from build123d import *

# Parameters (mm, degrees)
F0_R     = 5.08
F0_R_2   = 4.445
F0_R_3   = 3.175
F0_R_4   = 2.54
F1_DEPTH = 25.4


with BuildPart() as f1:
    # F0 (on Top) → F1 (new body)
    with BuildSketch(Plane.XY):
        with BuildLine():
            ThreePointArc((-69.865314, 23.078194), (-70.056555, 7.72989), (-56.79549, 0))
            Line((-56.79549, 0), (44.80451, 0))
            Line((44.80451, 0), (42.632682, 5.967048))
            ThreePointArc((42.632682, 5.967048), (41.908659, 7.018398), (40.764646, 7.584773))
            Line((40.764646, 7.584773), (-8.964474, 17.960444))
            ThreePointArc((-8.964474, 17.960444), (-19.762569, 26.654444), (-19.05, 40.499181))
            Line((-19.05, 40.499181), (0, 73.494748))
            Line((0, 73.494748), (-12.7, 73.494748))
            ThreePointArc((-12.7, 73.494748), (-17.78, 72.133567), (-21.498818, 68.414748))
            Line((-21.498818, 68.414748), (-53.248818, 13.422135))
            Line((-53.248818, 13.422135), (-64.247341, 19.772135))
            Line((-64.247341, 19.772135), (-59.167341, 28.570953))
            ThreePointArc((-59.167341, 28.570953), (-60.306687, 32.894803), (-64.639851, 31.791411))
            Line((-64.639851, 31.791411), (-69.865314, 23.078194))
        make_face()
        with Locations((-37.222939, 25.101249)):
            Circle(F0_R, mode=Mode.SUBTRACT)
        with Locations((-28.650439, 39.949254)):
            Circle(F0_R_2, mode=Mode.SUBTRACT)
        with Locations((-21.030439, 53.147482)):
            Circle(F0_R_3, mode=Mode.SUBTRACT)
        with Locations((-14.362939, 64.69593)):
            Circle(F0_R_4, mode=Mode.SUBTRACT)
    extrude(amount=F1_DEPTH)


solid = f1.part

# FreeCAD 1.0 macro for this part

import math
import FreeCAD as App
import Part
import Sketcher
Q = App.Units.Quantity

doc = App.newDocument("Part")
params = doc.addObject("Spreadsheet::Sheet", "Params")
for row, (alias, value) in enumerate([
    ("sketch1_diameter", "0.4 in"),
    ("sketch1_diameter2", "0.2 in"),
    ("sketch1_radius", "0.6 in"),
    ("sketch1_radius2", "0.0999998 in"),
    ("sketch1_diameter3", "0.35 in"),
    ("pad1_length", "1 in"),
], start=1):
    params.set(f"A{row}", alias)
    params.set(f"B{row}", "=" + value)
    params.setAlias(f"B{row}", alias)

body = doc.addObject("PartDesign::Body", "Body")

# Sketch on XY plane
sketch1 = body.newObject("Sketcher::SketchObject", "Sketch")
sketch1.AttachmentSupport = (doc.getObject("XY_Plane"), [""])
sketch1.MapMode = "FlatFace"
sketch1.addGeometry([
    Part.ArcOfCircle(Part.Circle(App.Vector(-56.8, 15.2, 0), App.Vector(0, 0, 1), 15.2), math.radians(149), math.radians(270)),  # 0
    Part.LineSegment(App.Vector(-56.8, 0, 0), App.Vector(44.8, 0, 0)),  # 1
    Part.LineSegment(App.Vector(44.8, 0, 0), App.Vector(42.6, 6, 0)),  # 2
    Part.ArcOfCircle(Part.Circle(App.Vector(40.2, 5.1, 0), App.Vector(0, 0, 1), 2.5), math.radians(20), math.radians(78)),  # 3
    Part.LineSegment(App.Vector(40.8, 7.6, 0), App.Vector(-9, 18, 0)),  # 4
    Part.ArcOfCircle(Part.Circle(App.Vector(-5.9, 32.9, 0), App.Vector(0, 0, 1), 15.2), math.radians(150), math.radians(258)),  # 5
    Part.LineSegment(App.Vector(-19.1, 40.5, 0), App.Vector(0, 73.5, 0)),  # 6
    Part.LineSegment(App.Vector(0, 73.5, 0), App.Vector(-12.7, 73.5, 0)),  # 7
    Part.ArcOfCircle(Part.Circle(App.Vector(-12.7, 63.3, 0), App.Vector(0, 0, 1), 10.2), math.radians(90), math.radians(150)),  # 8
    Part.LineSegment(App.Vector(-21.5, 68.4, 0), App.Vector(-53.2, 13.4, 0)),  # 9
    Part.LineSegment(App.Vector(-53.2, 13.4, 0), App.Vector(-64.2, 19.8, 0)),  # 10
    Part.LineSegment(App.Vector(-64.2, 19.8, 0), App.Vector(-59.2, 28.6, 0)),  # 11
    Part.ArcOfCircle(Part.Circle(App.Vector(-61.9, 30.2, 0), App.Vector(0, 0, 1), 3.2), math.radians(-30), math.radians(149)),  # 12
    Part.LineSegment(App.Vector(-64.6, 31.8, 0), App.Vector(-69.9, 23.1, 0)),  # 13
    Part.Circle(App.Vector(-37.2, 25.1, 0), App.Vector(0, 0, 1), 5.1),  # 14
    Part.Circle(App.Vector(-28.7, 39.9, 0), App.Vector(0, 0, 1), 4.4),  # 15
    Part.Circle(App.Vector(-21, 53.1, 0), App.Vector(0, 0, 1), 3.2),  # 16
    Part.Circle(App.Vector(-14.4, 64.7, 0), App.Vector(0, 0, 1), 2.5),  # 17
], False)
sketch1.addConstraint([
    Sketcher.Constraint("Tangent", 0, 2, 1, 1),
    Sketcher.Constraint("Coincident", 1, 2, 2, 1),
    Sketcher.Constraint("Tangent", 2, 2, 3, 1),
    Sketcher.Constraint("Tangent", 3, 2, 4, 1),
    Sketcher.Constraint("Tangent", 4, 2, 5, 2),
    Sketcher.Constraint("Tangent", 5, 1, 6, 1),
    Sketcher.Constraint("Coincident", 6, 2, 7, 1),
    Sketcher.Constraint("Tangent", 7, 2, 8, 1),
    Sketcher.Constraint("Tangent", 8, 2, 9, 1),
    Sketcher.Constraint("Coincident", 9, 2, 10, 1),
    Sketcher.Constraint("Coincident", 10, 2, 11, 1),
    Sketcher.Constraint("Tangent", 11, 2, 12, 1),
    Sketcher.Constraint("Tangent", 12, 2, 13, 1),
    Sketcher.Constraint("Tangent", 13, 2, 0, 1),
    Sketcher.Constraint("Horizontal", 1),
    Sketcher.Constraint("Horizontal", 7),
    Sketcher.Constraint("Equal", 0, 5),
    Sketcher.Constraint("Equal", 12, 16),
    Sketcher.Constraint("PointOnObject", 0, 2, -1),
    Sketcher.Constraint("PointOnObject", 6, 2, -2),
    Sketcher.Constraint("Parallel", 6, 9),
    Sketcher.Constraint("Perpendicular", 9, 10),
    Sketcher.Constraint("Perpendicular", 10, 11),
    Sketcher.Constraint("Equal", 11, 13),
    Sketcher.Constraint("Diameter", 14, Q("0.4 in")),
    Sketcher.Constraint("Diameter", 17, Q("0.2 in")),
    Sketcher.Constraint("Radius", 0, Q("0.6 in")),
    Sketcher.Constraint("Radius", 3, Q("0.0999998 in")),
    Sketcher.Constraint("Diameter", 15, Q("0.35 in")),
    Sketcher.Constraint("Diameter", 16, Q("0.25 in")),
    Sketcher.Constraint("DistanceX", 1, 1, 1, 2, Q("4 in")),
    Sketcher.Constraint("Distance", 4, Q("2 in")),
    Sketcher.Constraint("DistanceX", 7, 2, 7, 1, Q("0.5 in")),
    Sketcher.Constraint("Angle", 2, Q("110.000001 deg")),
    Sketcher.Constraint("Angle", 6, Q("59.999999 deg")),
    Sketcher.Constraint("Distance", 6, Q("1.5 in")),
    Sketcher.Constraint("Distance", 9, Q("2.5 in")),
    Sketcher.Constraint("Distance", 10, Q("0.5 in")),
    Sketcher.Constraint("Distance", 11, Q("0.4 in")),
    Sketcher.Constraint("DistanceX", 15, 3, 16, 3, Q("0.3 in")),
    Sketcher.Constraint("DistanceX", 14, 3, 17, 3, Q("0.9 in")),
    Sketcher.Constraint("DistanceY", 8, 2, 7, 2, Q("0.2 in")),
    Sketcher.Constraint("Distance", 2, Q("0.25 in")),
    Sketcher.Constraint("DistanceX", 15, 3, 17, 3, Q("0.5625 in")),
    Sketcher.Constraint("DistanceY", 15, 3, 8, 3, 23.385499),
    Sketcher.Constraint("DistanceY", 5, 3, 16, 3, 20.268301),
    Sketcher.Constraint("DistanceX", 14, 3, -1, 1, 37.222939),
    Sketcher.Constraint("DistanceY", -1, 1, 14, 3, 25.101249),
    Sketcher.Constraint("DistanceY", -1, 1, 17, 3, 64.69593),
])
sketch1.setExpression("Constraints[24]", "Params.sketch1_diameter")
sketch1.setExpression("Constraints[25]", "Params.sketch1_diameter2")
sketch1.setExpression("Constraints[26]", "Params.sketch1_radius")
sketch1.setExpression("Constraints[27]", "Params.sketch1_radius2")
sketch1.setExpression("Constraints[28]", "Params.sketch1_diameter3")
pad1 = body.newObject("PartDesign::Pad", "Pad")
pad1.Profile = sketch1
pad1.setExpression("Length", "Params.pad1_length")

doc.recompute()
